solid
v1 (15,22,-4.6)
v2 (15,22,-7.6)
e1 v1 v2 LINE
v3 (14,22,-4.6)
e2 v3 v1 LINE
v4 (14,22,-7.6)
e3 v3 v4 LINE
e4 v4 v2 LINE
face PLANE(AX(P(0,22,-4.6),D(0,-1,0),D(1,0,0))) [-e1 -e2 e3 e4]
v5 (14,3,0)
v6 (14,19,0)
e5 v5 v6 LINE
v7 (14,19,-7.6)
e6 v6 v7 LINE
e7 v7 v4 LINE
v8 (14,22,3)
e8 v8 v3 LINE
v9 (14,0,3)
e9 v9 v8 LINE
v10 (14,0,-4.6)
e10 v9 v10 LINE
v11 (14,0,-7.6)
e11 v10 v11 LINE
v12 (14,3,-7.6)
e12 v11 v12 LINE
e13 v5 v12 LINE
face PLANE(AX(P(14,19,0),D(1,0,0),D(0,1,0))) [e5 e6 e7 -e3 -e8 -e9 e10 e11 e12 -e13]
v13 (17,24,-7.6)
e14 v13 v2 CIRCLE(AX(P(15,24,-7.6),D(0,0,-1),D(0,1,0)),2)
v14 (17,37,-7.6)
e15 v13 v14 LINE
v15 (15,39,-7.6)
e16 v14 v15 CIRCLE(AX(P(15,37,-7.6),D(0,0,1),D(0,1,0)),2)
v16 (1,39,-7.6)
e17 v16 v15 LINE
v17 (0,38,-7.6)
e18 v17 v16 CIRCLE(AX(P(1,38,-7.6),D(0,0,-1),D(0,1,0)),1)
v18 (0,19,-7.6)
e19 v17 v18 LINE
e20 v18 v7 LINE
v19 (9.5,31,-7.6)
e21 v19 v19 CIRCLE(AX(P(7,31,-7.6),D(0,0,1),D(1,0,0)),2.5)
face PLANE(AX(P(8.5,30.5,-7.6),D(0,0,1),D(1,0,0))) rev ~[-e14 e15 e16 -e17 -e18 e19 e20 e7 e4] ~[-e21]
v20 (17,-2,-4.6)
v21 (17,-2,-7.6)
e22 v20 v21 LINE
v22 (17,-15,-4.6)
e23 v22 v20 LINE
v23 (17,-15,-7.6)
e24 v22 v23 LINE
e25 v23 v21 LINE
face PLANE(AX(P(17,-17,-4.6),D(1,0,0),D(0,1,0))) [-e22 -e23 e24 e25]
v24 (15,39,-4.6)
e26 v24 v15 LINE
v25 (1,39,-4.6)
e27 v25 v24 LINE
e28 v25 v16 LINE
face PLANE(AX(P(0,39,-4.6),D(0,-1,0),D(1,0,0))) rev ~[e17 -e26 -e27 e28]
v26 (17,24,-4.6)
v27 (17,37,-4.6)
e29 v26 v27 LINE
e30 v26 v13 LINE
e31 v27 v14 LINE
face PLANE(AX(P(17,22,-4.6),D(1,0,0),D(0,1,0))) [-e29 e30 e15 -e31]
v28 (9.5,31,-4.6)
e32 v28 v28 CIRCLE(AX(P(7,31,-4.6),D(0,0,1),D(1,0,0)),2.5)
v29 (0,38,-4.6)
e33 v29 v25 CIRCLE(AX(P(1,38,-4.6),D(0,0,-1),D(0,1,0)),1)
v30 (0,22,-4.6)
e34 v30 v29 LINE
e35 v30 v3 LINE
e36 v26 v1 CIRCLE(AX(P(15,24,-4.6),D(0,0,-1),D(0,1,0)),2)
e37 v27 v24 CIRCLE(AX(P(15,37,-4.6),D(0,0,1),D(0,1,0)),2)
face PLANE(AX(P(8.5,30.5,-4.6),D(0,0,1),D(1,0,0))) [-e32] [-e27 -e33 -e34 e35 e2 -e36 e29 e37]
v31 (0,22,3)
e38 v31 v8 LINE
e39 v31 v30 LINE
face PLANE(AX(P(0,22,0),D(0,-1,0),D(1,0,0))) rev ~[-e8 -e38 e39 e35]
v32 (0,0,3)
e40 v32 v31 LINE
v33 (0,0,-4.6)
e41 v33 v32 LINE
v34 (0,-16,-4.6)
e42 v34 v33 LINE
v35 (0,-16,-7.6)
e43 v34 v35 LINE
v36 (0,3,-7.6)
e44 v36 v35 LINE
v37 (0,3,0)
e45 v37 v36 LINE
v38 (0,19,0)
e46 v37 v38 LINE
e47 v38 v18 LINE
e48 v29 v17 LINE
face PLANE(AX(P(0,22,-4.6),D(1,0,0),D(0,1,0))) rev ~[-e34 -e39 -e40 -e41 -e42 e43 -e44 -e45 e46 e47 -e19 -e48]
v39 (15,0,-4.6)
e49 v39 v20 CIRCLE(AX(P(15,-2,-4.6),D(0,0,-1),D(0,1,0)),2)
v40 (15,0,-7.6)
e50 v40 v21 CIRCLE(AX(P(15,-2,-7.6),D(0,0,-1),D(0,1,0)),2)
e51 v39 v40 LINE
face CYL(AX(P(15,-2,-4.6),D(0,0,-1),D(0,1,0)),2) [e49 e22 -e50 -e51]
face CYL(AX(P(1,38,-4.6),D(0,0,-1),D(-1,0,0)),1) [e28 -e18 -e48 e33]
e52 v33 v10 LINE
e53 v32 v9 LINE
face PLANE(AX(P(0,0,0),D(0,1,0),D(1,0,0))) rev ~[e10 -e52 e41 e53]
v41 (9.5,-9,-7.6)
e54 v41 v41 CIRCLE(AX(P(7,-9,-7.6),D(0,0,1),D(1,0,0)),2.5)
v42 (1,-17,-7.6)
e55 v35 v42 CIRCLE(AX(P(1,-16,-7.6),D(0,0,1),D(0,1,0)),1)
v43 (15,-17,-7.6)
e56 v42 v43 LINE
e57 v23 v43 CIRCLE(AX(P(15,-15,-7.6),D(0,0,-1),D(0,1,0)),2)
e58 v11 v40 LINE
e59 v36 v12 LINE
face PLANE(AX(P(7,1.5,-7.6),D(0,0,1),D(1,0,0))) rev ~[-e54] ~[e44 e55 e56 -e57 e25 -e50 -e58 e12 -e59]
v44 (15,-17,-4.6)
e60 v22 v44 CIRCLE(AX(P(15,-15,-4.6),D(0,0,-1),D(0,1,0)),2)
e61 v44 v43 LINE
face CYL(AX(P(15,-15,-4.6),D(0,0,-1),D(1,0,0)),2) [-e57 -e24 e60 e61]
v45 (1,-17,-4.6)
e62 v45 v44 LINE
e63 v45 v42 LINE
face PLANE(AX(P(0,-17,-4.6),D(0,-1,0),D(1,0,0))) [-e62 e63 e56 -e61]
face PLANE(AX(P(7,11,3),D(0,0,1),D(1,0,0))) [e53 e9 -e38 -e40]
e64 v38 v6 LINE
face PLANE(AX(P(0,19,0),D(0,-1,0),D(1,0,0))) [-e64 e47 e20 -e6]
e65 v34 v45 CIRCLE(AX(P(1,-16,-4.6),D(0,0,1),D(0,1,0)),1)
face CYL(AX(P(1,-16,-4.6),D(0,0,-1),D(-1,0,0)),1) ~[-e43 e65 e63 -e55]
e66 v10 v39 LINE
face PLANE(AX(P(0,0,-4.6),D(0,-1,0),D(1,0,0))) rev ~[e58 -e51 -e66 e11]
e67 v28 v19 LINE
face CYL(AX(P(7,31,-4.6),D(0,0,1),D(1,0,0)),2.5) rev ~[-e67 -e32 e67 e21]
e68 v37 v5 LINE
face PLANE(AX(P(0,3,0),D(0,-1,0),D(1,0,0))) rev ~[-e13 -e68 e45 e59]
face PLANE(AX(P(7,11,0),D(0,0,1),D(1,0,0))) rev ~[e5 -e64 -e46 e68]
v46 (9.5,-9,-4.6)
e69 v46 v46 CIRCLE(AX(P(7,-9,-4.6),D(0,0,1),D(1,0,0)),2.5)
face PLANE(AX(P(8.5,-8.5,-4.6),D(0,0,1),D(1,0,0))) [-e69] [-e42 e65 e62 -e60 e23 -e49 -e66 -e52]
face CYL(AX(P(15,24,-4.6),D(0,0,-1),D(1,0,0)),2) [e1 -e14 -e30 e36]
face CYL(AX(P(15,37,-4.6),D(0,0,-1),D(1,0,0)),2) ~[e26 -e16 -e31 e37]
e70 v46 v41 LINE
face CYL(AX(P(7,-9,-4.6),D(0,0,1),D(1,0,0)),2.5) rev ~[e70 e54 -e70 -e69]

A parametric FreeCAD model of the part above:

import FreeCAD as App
import Part
import Sketcher
Q = App.Units.Quantity


def edges_at(feature, points):
    """Names of the edges that pass closest to the given points."""
    edges = feature.Shape.Edges
    near = lambda p: min(range(len(edges)), key=lambda i: edges[i].distToShape(Part.Vertex(*p))[0])
    return sorted({f"Edge{near(p) + 1}" for p in points})

doc = App.newDocument("Part")
body = doc.addObject("PartDesign::Body", "Body")

# Sketch on XY plane
sketch1 = body.newObject("Sketcher::SketchObject", "Sketch")
sketch1.AttachmentSupport = (doc.getObject("XY_Plane"), [""])
sketch1.MapMode = "FlatFace"
sketch1.addGeometry(Part.LineSegment(App.Vector(0, 22, 0), App.Vector(0, 0, 0)), False)
sketch1.addGeometry(Part.LineSegment(App.Vector(0, 0, 0), App.Vector(14, 0, 0)), False)
sketch1.addGeometry(Part.LineSegment(App.Vector(14, 0, 0), App.Vector(14, 22, 0)), False)
sketch1.addGeometry(Part.LineSegment(App.Vector(14, 22, 0), App.Vector(0, 22, 0)), False)
sketch1.addConstraint(Sketcher.Constraint("Coincident", 0, 2, 1, 1))
sketch1.addConstraint(Sketcher.Constraint("Coincident", 1, 2, 2, 1))
sketch1.addConstraint(Sketcher.Constraint("Coincident", 2, 2, 3, 1))
sketch1.addConstraint(Sketcher.Constraint("Coincident", 3, 2, 0, 1))
sketch1.addConstraint(Sketcher.Constraint("Vertical", 0))
sketch1.addConstraint(Sketcher.Constraint("Horizontal", 1))
sketch1.addConstraint(Sketcher.Constraint("Vertical", 2))
sketch1.addConstraint(Sketcher.Constraint("Horizontal", 3))
sketch1.addConstraint(Sketcher.Constraint("Coincident", 0, 2, -1, 1))
sketch1.addConstraint(Sketcher.Constraint("DistanceX", 1, 1, 1, 2, Q("14 mm")))
sketch1.addConstraint(Sketcher.Constraint("DistanceY", 0, 2, 0, 1, Q("22 mm")))
pad1 = body.newObject("PartDesign::Pad", "Pad")
pad1.Profile = sketch1
pad1.Length = 3

# Sketch on XY plane
sketch2 = body.newObject("Sketcher::SketchObject", "Sketch001")
sketch2.AttachmentSupport = (doc.getObject("XY_Plane"), [""])
sketch2.MapMode = "FlatFace"
sketch2.addGeometry(Part.LineSegment(App.Vector(0, 22, 0), App.Vector(0, 19, 0)), False)
sketch2.addGeometry(Part.LineSegment(App.Vector(0, 19, 0), App.Vector(14, 19, 0)), False)
sketch2.addGeometry(Part.LineSegment(App.Vector(14, 19, 0), App.Vector(14, 22, 0)), False)
sketch2.addGeometry(Part.LineSegment(App.Vector(14, 22, 0), App.Vector(0, 22, 0)), False)
sketch2.addGeometry(Part.LineSegment(App.Vector(0, 3, 0), App.Vector(0, 0, 0)), False)
sketch2.addGeometry(Part.LineSegment(App.Vector(0, 0, 0), App.Vector(14, 0, 0)), False)
sketch2.addGeometry(Part.LineSegment(App.Vector(14, 0, 0), App.Vector(14, 3, 0)), False)
sketch2.addGeometry(Part.LineSegment(App.Vector(14, 3, 0), App.Vector(0, 3, 0)), False)
sketch2.addConstraint(Sketcher.Constraint("Coincident", 0, 2, 1, 1))
sketch2.addConstraint(Sketcher.Constraint("Coincident", 1, 2, 2, 1))
sketch2.addConstraint(Sketcher.Constraint("Coincident", 2, 2, 3, 1))
sketch2.addConstraint(Sketcher.Constraint("Coincident", 3, 2, 0, 1))
sketch2.addConstraint(Sketcher.Constraint("Coincident", 4, 2, 5, 1))
sketch2.addConstraint(Sketcher.Constraint("Coincident", 5, 2, 6, 1))
sketch2.addConstraint(Sketcher.Constraint("Coincident", 6, 2, 7, 1))
sketch2.addConstraint(Sketcher.Constraint("Coincident", 7, 2, 4, 1))
sketch2.addConstraint(Sketcher.Constraint("Vertical", 0))
sketch2.addConstraint(Sketcher.Constraint("Horizontal", 1))
sketch2.addConstraint(Sketcher.Constraint("Vertical", 2))
sketch2.addConstraint(Sketcher.Constraint("Horizontal", 3))
sketch2.addConstraint(Sketcher.Constraint("Vertical", 4))
sketch2.addConstraint(Sketcher.Constraint("Horizontal", 5))
sketch2.addConstraint(Sketcher.Constraint("Vertical", 6))
sketch2.addConstraint(Sketcher.Constraint("Horizontal", 7))
sketch2.addConstraint(Sketcher.Constraint("Coincident", 4, 2, -1, 1))
sketch2.addConstraint(Sketcher.Constraint("PointOnObject", 0, 2, -2))
sketch2.addConstraint(Sketcher.Constraint("Vertical", 2, 2, 5, 2))
sketch2.addConstraint(Sketcher.Constraint("Equal", 2, 4))
sketch2.addConstraint(Sketcher.Constraint("DistanceX", 1, 1, 1, 2, Q("14 mm")))
sketch2.addConstraint(Sketcher.Constraint("DistanceY", 0, 2, 0, 1, Q("3 mm")))
sketch2.addConstraint(Sketcher.Constraint("DistanceY", -1, 1, 0, 2, Q("19 mm")))
pad2 = body.newObject("PartDesign::Pad", "Pad001")
pad2.Profile = sketch2
pad2.Length = 7.6
pad2.Reversed = True

# Sketch on XY plane
sketch3 = body.newObject("Sketcher::SketchObject", "Sketch002")
sketch3.AttachmentSupport = (doc.getObject("XY_Plane"), [""])
sketch3.MapMode = "FlatFace"
sketch3.AttachmentOffset = App.Placement(App.Vector(0, 0, -4.6), App.Rotation())
sketch3.addGeometry(Part.LineSegment(App.Vector(0, 39, 0), App.Vector(0, 22, 0)), False)
sketch3.addGeometry(Part.LineSegment(App.Vector(0, 22, 0), App.Vector(17, 22, 0)), False)
sketch3.addGeometry(Part.LineSegment(App.Vector(17, 22, 0), App.Vector(17, 39, 0)), False)
sketch3.addGeometry(Part.LineSegment(App.Vector(17, 39, 0), App.Vector(0, 39, 0)), False)
sketch3.addGeometry(Part.Circle(App.Vector(7, 31, 0), App.Vector(0, 0, 1), 2.5), False)
sketch3.addGeometry(Part.LineSegment(App.Vector(0, 0, 0), App.Vector(0, -17, 0)), False)
sketch3.addGeometry(Part.LineSegment(App.Vector(0, -17, 0), App.Vector(17, -17, 0)), False)
sketch3.addGeometry(Part.LineSegment(App.Vector(17, -17, 0), App.Vector(17, 0, 0)), False)
sketch3.addGeometry(Part.LineSegment(App.Vector(17, 0, 0), App.Vector(0, 0, 0)), False)
sketch3.addGeometry(Part.Circle(App.Vector(7, -9, 0), App.Vector(0, 0, 1), 2.5), False)
sketch3.addConstraint(Sketcher.Constraint("Coincident", 0, 2, 1, 1))
sketch3.addConstraint(Sketcher.Constraint("Coincident", 1, 2, 2, 1))
sketch3.addConstraint(Sketcher.Constraint("Coincident", 2, 2, 3, 1))
sketch3.addConstraint(Sketcher.Constraint("Coincident", 3, 2, 0, 1))
sketch3.addConstraint(Sketcher.Constraint("Coincident", 5, 2, 6, 1))
sketch3.addConstraint(Sketcher.Constraint("Coincident", 6, 2, 7, 1))
sketch3.addConstraint(Sketcher.Constraint("Coincident", 7, 2, 8, 1))
sketch3.addConstraint(Sketcher.Constraint("Coincident", 8, 2, 5, 1))
sketch3.addConstraint(Sketcher.Constraint("Vertical", 0))
sketch3.addConstraint(Sketcher.Constraint("Horizontal", 1))
sketch3.addConstraint(Sketcher.Constraint("Vertical", 2))
sketch3.addConstraint(Sketcher.Constraint("Horizontal", 3))
sketch3.addConstraint(Sketcher.Constraint("Vertical", 5))
sketch3.addConstraint(Sketcher.Constraint("Horizontal", 6))
sketch3.addConstraint(Sketcher.Constraint("Vertical", 7))
sketch3.addConstraint(Sketcher.Constraint("Horizontal", 8))
sketch3.addConstraint(Sketcher.Constraint("Coincident", 8, 2, -1, 1))
sketch3.addConstraint(Sketcher.Constraint("Equal", 4, 9))
sketch3.addConstraint(Sketcher.Constraint("PointOnObject", 0, 2, -2))
sketch3.addConstraint(Sketcher.Constraint("Vertical", 4, 3, 9, 3))
sketch3.addConstraint(Sketcher.Constraint("Vertical", 2, 2, 6, 2))
sketch3.addConstraint(Sketcher.Constraint("Equal", 8, 0))
sketch3.addConstraint(Sketcher.Constraint("Equal", 2, 5))
sketch3.addConstraint(Sketcher.Constraint("Diameter", 4, Q("5 mm")))
sketch3.addConstraint(Sketcher.Constraint("DistanceX", 1, 1, 1, 2, Q("17 mm")))
sketch3.addConstraint(Sketcher.Constraint("DistanceX", -1, 1, 4, 3, Q("7 mm")))
sketch3.addConstraint(Sketcher.Constraint("DistanceY", -1, 1, 4, 3, Q("31 mm")))
sketch3.addConstraint(Sketcher.Constraint("DistanceY", 9, 3, -1, 1, Q("9 mm")))
sketch3.addConstraint(Sketcher.Constraint("DistanceY", -1, 1, 0, 2, Q("22 mm")))
pad3 = body.newObject("PartDesign::Pad", "Pad002")
pad3.Profile = sketch3
pad3.Length = 3
pad3.Reversed = True
doc.recompute()

fillet = body.newObject("PartDesign::Fillet", "Fillet")
fillet.Base = (pad3, edges_at(pad3, [
    (17, -17, -6.1),
    (17, 0, -6.1),
    (17, 22, -6.1),
    (17, 39, -6.1),
]))
fillet.Radius = 2
doc.recompute()

fillet2 = body.newObject("PartDesign::Fillet", "Fillet001")
fillet2.Base = (fillet, edges_at(fillet, [(0, -17, -6.1), (0, 39, -6.1)]))
fillet2.Radius = 1

doc.recompute()
